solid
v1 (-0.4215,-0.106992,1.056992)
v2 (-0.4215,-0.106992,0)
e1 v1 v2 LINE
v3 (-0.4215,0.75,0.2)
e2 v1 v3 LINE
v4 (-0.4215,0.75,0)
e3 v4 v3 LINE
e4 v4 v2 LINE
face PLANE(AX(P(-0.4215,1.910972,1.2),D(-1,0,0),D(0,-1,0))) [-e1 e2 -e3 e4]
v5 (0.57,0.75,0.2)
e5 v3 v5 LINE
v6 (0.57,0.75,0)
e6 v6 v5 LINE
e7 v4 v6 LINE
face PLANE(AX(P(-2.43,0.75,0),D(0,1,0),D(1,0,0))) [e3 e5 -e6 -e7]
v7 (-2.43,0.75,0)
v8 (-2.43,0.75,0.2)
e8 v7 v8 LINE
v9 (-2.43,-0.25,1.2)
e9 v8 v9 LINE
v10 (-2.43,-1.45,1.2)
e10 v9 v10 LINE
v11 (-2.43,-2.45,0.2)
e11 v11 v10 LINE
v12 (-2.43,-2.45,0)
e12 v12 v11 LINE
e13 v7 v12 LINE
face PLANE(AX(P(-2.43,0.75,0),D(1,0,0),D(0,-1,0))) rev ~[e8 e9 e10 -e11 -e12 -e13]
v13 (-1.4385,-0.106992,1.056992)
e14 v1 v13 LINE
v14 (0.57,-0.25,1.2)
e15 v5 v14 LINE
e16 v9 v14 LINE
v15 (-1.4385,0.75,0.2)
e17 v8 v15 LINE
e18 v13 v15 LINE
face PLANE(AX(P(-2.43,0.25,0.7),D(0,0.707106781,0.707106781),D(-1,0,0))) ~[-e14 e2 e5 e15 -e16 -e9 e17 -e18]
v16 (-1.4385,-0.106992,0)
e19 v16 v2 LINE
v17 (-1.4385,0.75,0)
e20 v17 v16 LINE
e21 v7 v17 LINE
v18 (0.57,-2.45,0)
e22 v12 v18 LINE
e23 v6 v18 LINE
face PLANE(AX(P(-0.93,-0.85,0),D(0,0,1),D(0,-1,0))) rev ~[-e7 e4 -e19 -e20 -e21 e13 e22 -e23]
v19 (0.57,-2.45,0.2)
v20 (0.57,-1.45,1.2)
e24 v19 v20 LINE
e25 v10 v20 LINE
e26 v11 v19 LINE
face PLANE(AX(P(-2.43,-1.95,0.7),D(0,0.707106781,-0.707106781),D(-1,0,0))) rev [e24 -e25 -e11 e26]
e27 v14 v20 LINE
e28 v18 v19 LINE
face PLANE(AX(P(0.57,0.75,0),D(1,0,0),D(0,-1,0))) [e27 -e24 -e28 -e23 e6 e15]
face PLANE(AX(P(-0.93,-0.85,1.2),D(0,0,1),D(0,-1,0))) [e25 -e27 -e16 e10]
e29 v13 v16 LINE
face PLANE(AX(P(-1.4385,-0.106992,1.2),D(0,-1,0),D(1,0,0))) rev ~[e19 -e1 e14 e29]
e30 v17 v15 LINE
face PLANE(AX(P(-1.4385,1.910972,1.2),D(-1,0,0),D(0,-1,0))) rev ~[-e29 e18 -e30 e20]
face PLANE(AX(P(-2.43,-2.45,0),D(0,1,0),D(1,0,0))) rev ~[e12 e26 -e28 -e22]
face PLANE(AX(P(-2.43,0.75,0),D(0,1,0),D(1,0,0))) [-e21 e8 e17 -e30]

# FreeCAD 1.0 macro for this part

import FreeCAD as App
import Part
import Sketcher
from FreeCAD import Vector


def edges_at(feature, points):
    """Names of the edges that pass closest to the given points."""
    edges = feature.Shape.Edges
    near = lambda p: min(range(len(edges)), key=lambda i: edges[i].distToShape(Part.Vertex(*p))[0])
    return sorted({f"Edge{near(p) + 1}" for p in points})

doc = App.newDocument("Part")
body = doc.addObject("PartDesign::Body", "Body")

# Sketch on XY plane
sketch1 = doc.addObject("Sketcher::SketchObject", "Sketch")
body.addObject(sketch1)
sketch1.AttachmentSupport = (doc.XY_Plane, [""])
sketch1.MapMode = "FlatFace"
sketch1.addGeometry([
    Part.LineSegment(Vector(-1.6, 1.5, 0), Vector(-1.6, -1.5, 0)),
    Part.LineSegment(Vector(-1.6, -1.5, 0), Vector(1.6, -1.5, 0)),
    Part.LineSegment(Vector(1.6, -1.5, 0), Vector(1.6, 1.5, 0)),
    Part.LineSegment(Vector(1.6, 1.5, 0), Vector(-1.6, 1.5, 0)),
], False)
sketch1.addConstraint([
    Sketcher.Constraint("Coincident", 0, 2, 1, 1),
    Sketcher.Constraint("Coincident", 1, 2, 2, 1),
    Sketcher.Constraint("Coincident", 2, 2, 3, 1),
    Sketcher.Constraint("Coincident", 3, 2, 0, 1),
    Sketcher.Constraint("Vertical", 0),
    Sketcher.Constraint("Horizontal", 1),
    Sketcher.Constraint("Vertical", 2),
    Sketcher.Constraint("Horizontal", 3),
    Sketcher.Constraint("Symmetric", 0, 2, 2, 2, -1, 1),
    Sketcher.Constraint("DistanceY", 0, 2, 0, 1, 3.0),
    Sketcher.Constraint("DistanceX", 1, 1, 1, 2, 3.2),
])
pad1 = doc.addObject("PartDesign::Pad", "Pad")
body.addObject(pad1)
pad1.Profile = sketch1
pad1.Length = 1.2
doc.recompute()

chamfer = doc.addObject("PartDesign::Chamfer", "Chamfer")
body.addObject(chamfer)
chamfer.Base = (pad1, edges_at(pad1, [(-1.6, 0, 1.2), (1.6, 0, 1.2)]))
chamfer.Size = 1

# Sketch on XY plane
sketch2 = doc.addObject("Sketcher::SketchObject", "Sketch001")
body.addObject(sketch2)
sketch2.AttachmentSupport = (doc.XY_Plane, [""])
sketch2.MapMode = "FlatFace"
sketch2.AttachmentOffset = App.Placement(Vector(0, 0, 1.2), App.Rotation())
sketch2.addGeometry([
    Part.LineSegment(Vector(-2.8, 0.5, 0), Vector(-2.8, -0.5, 0)),
    Part.LineSegment(Vector(-2.8, -0.5, 0), Vector(-0.7, -0.5, 0)),
    Part.LineSegment(Vector(-0.7, -0.5, 0), Vector(-0.7, 0.5, 0)),
    Part.LineSegment(Vector(-0.7, 0.5, 0), Vector(-2.8, 0.5, 0)),
], False)
sketch2.addConstraint([
    Sketcher.Constraint("Coincident", 0, 2, 1, 1),
    Sketcher.Constraint("Coincident", 1, 2, 2, 1),
    Sketcher.Constraint("Coincident", 2, 2, 3, 1),
    Sketcher.Constraint("Coincident", 3, 2, 0, 1),
    Sketcher.Constraint("Vertical", 0),
    Sketcher.Constraint("Horizontal", 1),
    Sketcher.Constraint("Vertical", 2),
    Sketcher.Constraint("Horizontal", 3),
    Sketcher.Constraint("DistanceY", 0, 2, 0, 1, 1.017),
    Sketcher.Constraint("DistanceY", 0, 2, -1, 1, 0.5085),
    Sketcher.Constraint("DistanceX", 1, 1, 1, 2, 2.017963),
    Sketcher.Constraint("DistanceX", 0, 2, -1, 1, 2.760972),
])
pocket1 = doc.addObject("PartDesign::Pocket", "Pocket")
body.addObject(pocket1)
pocket1.Profile = sketch2
pocket1.Length = 5
body2 = doc.addObject("PartDesign::Body", "Body001")
doc.recompute()

body.Placement = App.Placement(Vector(-0.93, -0.85, 0), App.Rotation(Vector(0, 0, -1), 90))
boolean = doc.addObject("PartDesign::Boolean", "Boolean")
body2.addObject(boolean)
boolean.Type = "Fuse"
boolean.addObjects([body])

doc.recompute()
